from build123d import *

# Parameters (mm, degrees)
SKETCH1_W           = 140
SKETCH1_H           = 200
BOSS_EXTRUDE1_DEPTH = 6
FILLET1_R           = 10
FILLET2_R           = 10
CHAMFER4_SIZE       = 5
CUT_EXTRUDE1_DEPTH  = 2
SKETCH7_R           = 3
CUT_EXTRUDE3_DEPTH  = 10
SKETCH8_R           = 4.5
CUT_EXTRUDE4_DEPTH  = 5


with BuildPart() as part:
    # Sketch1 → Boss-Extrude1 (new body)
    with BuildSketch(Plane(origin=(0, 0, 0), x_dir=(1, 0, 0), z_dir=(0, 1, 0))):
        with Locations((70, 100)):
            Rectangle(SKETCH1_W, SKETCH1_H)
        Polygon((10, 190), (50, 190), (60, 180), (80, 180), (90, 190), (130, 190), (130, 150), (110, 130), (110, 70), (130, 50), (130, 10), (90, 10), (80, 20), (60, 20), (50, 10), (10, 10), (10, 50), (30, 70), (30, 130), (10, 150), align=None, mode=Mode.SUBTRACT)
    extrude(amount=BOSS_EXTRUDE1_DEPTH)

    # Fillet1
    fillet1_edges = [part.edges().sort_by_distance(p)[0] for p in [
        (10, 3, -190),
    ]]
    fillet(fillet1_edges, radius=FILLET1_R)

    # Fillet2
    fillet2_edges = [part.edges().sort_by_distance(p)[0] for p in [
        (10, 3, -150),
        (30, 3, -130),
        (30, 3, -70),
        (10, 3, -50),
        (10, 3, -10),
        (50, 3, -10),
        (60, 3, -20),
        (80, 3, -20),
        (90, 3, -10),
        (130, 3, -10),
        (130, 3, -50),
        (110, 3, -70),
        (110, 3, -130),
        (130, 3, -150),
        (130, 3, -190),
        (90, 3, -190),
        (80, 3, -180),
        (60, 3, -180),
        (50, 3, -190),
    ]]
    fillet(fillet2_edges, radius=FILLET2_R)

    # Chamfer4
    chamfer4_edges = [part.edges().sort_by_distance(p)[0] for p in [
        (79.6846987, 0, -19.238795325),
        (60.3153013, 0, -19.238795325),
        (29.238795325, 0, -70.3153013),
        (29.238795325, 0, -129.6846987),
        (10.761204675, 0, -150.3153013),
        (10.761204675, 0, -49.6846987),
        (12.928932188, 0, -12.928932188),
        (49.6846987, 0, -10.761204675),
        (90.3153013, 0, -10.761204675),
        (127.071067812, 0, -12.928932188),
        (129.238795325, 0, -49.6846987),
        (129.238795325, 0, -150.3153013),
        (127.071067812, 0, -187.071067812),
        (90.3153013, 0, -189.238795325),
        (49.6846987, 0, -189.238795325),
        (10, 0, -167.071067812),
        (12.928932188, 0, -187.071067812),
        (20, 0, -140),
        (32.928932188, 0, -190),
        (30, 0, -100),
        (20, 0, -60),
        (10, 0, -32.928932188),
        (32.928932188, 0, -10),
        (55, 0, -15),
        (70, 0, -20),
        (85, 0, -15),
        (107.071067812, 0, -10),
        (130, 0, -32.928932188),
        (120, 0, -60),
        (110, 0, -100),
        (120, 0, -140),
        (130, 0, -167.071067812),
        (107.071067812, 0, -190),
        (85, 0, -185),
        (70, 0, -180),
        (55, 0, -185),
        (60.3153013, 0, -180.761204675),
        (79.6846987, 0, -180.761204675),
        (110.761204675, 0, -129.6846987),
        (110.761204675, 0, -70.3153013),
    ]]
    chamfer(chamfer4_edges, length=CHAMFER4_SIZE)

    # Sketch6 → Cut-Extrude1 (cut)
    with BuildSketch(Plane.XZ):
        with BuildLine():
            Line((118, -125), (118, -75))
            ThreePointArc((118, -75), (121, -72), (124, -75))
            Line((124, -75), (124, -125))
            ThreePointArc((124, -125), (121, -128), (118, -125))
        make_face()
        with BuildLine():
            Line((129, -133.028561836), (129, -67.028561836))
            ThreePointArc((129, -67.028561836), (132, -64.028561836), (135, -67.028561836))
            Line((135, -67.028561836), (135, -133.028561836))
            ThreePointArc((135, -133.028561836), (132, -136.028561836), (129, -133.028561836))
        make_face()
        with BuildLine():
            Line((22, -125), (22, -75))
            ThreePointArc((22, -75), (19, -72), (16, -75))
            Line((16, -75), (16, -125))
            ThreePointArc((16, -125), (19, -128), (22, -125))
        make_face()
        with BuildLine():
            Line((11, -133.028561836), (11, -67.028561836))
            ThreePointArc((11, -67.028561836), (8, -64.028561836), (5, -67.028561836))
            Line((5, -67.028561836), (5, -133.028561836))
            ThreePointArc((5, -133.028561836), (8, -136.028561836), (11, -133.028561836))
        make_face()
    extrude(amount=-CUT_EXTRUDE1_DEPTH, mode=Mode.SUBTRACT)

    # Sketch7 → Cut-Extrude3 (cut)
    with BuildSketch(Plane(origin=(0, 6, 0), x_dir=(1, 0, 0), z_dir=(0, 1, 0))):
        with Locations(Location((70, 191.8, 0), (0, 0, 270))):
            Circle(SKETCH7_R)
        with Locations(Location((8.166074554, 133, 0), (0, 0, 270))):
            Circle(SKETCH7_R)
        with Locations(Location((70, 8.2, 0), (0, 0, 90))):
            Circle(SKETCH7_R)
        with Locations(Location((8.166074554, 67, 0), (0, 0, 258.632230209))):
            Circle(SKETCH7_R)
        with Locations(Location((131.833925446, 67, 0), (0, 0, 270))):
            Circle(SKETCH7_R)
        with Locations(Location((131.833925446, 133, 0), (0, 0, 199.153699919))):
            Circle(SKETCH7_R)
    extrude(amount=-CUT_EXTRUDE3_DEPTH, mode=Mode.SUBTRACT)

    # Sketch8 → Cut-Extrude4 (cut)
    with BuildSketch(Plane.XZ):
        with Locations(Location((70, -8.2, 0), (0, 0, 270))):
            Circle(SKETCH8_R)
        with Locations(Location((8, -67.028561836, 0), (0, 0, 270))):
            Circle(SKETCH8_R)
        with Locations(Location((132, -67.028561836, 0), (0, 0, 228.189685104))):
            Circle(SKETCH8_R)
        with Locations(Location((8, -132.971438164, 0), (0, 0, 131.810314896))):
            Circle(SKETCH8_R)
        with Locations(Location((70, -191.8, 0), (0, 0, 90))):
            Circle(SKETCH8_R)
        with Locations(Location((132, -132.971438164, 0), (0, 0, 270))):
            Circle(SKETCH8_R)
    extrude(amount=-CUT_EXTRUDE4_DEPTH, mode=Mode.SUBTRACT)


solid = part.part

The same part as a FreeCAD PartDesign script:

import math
import FreeCAD as App
import Part
import Sketcher
from FreeCAD import Vector


def edges_at(feature, points):
    """Names of the edges that pass closest to the given points."""
    edges = feature.Shape.Edges
    near = lambda p: min(range(len(edges)), key=lambda i: edges[i].distToShape(Part.Vertex(*p))[0])
    return sorted({f"Edge{near(p) + 1}" for p in points})


def add_polygon(sketch, points):
    """Adds a closed chain of lines whose ends are joined by coincident constraints."""
    first, n = sketch.GeometryCount, len(points)
    for a, b in zip(points, points[1:] + points[:1]):
        sketch.addGeometry(Part.LineSegment(App.Vector(*a, 0), App.Vector(*b, 0)), False)
    for i in range(n):
        sketch.addConstraint(Sketcher.Constraint("Coincident", first + i, 2, first + (i + 1) % n, 1))

doc = App.newDocument("Part")
body = doc.addObject("PartDesign::Body", "Body")

# Sketch on XZ plane
sketch1 = body.newObject("Sketcher::SketchObject", "Sketch")
sketch1.AttachmentSupport = (doc.getObject("XZ_Plane"), [""])
sketch1.MapMode = "FlatFace"
add_polygon(sketch1, [(0, -200), (0, 0), (140, 0), (140, -200)])  # lines 0-3
add_polygon(sketch1, [(10, -150), (10, -190), (50, -190), (60, -180), (80, -180), (90, -190), (130, -190), (130, -150), (110, -130), (110, -70), (130, -50), (130, -10), (90, -10), (80, -20), (60, -20), (50, -10), (10, -10), (10, -50), (30, -70), (30, -130)])  # lines 4-23
sketch1.addConstraint([
    Sketcher.Constraint("Vertical", 0),
    Sketcher.Constraint("Horizontal", 1),
    Sketcher.Constraint("Vertical", 2),
    Sketcher.Constraint("Horizontal", 3),
    Sketcher.Constraint("Vertical", 4),
    Sketcher.Constraint("Horizontal", 5),
    Sketcher.Constraint("Horizontal", 7),
    Sketcher.Constraint("Horizontal", 9),
    Sketcher.Constraint("Vertical", 10),
    Sketcher.Constraint("Vertical", 12),
    Sketcher.Constraint("Vertical", 14),
    Sketcher.Constraint("Horizontal", 15),
    Sketcher.Constraint("Horizontal", 17),
    Sketcher.Constraint("Horizontal", 19),
    Sketcher.Constraint("Vertical", 20),
    Sketcher.Constraint("Vertical", 22),
    Sketcher.Constraint("Coincident", 0, 2, -1, 1),
    Sketcher.Constraint("Perpendicular", 6, 8),
    Sketcher.Constraint("Parallel", 8, 11),
    Sketcher.Constraint("Perpendicular", 11, 13),
    Sketcher.Constraint("Parallel", 13, 16),
    Sketcher.Constraint("Perpendicular", 16, 18),
    Sketcher.Constraint("Parallel", 18, 21),
    Sketcher.Constraint("Perpendicular", 21, 23),
    Sketcher.Constraint("Horizontal", 5, 2, 8, 2),
    Sketcher.Constraint("Horizontal", 15, 2, 18, 2),
    Sketcher.Constraint("Horizontal", 13, 2, 20, 2),
    Sketcher.Constraint("Horizontal", 12, 2, 21, 2),
    Sketcher.Constraint("Horizontal", 11, 2, 22, 2),
    Sketcher.Constraint("Horizontal", 10, 2, 23, 2),
    Sketcher.Constraint("Vertical", 10, 2, 13, 2),
    Sketcher.Constraint("Vertical", 8, 2, 15, 2),
    Sketcher.Constraint("Vertical", 7, 2, 16, 2),
    Sketcher.Constraint("Vertical", 6, 2, 17, 2),
    Sketcher.Constraint("Vertical", 5, 2, 18, 2),
    Sketcher.Constraint("Equal", 5, 9),
    Sketcher.Constraint("Equal", 19, 4),
    Sketcher.Constraint("Equal", 10, 14),
    Sketcher.Constraint("DistanceX", 1, 1, 1, 2, 140.0),
    Sketcher.Constraint("DistanceX", 5, 1, 5, 2, 40.0),
    Sketcher.Constraint("DistanceX", 7, 1, 7, 2, 20.0),
    Sketcher.Constraint("DistanceY", 0, 1, 0, 2, 200.0),
    Sketcher.Constraint("DistanceY", 12, 1, 12, 2, 60.0),
    Sketcher.Constraint("DistanceX", -1, 1, 4, 2, 10.0),
    Sketcher.Constraint("DistanceY", 4, 2, -1, 1, 190.0),
    Sketcher.Constraint("DistanceX", -1, 1, 6, 2, 60.0),
    Sketcher.Constraint("DistanceX", -1, 1, 11, 2, 110.0),
])
pad1 = body.newObject("PartDesign::Pad", "Pad")
pad1.Profile = sketch1
pad1.Length = 6
pad1.Reversed = True
doc.recompute()

fillet = body.newObject("PartDesign::Fillet", "Fillet")
fillet.Base = (pad1, edges_at(pad1, [(10, 3, -190)]))
fillet.Radius = 10
doc.recompute()

fillet2 = body.newObject("PartDesign::Fillet", "Fillet001")
fillet2.Base = (fillet, edges_at(fillet, [
    (10, 3, -150),
    (30, 3, -130),
    (30, 3, -70),
    (10, 3, -50),
    (10, 3, -10),
    (50, 3, -10),
    (60, 3, -20),
    (80, 3, -20),
    (90, 3, -10),
    (130, 3, -10),
    (130, 3, -50),
    (110, 3, -70),
    (110, 3, -130),
    (130, 3, -150),
    (130, 3, -190),
    (90, 3, -190),
    (80, 3, -180),
    (60, 3, -180),
    (50, 3, -190),
]))
fillet2.Radius = 10
doc.recompute()

chamfer = body.newObject("PartDesign::Chamfer", "Chamfer")
chamfer.Base = (fillet2, edges_at(fillet2, [
    (79.685, 0, -19.239),
    (60.315, 0, -19.239),
    (29.239, 0, -70.315),
    (29.239, 0, -129.685),
    (10.761, 0, -150.315),
    (10.761, 0, -49.685),
    (12.929, 0, -12.929),
    (49.685, 0, -10.761),
    (90.315, 0, -10.761),
    (127.071, 0, -12.929),
    (129.239, 0, -49.685),
    (129.239, 0, -150.315),
    (127.071, 0, -187.071),
    (90.315, 0, -189.239),
    (49.685, 0, -189.239),
    (10, 0, -167.071),
    (12.929, 0, -187.071),
    (20, 0, -140),
    (32.929, 0, -190),
    (30, 0, -100),
    (20, 0, -60),
    (10, 0, -32.929),
    (32.929, 0, -10),
    (55, 0, -15),
    (70, 0, -20),
    (85, 0, -15),
    (107.071, 0, -10),
    (130, 0, -32.929),
    (120, 0, -60),
    (110, 0, -100),
    (120, 0, -140),
    (130, 0, -167.071),
    (107.071, 0, -190),
    (85, 0, -185),
    (70, 0, -180),
    (55, 0, -185),
    (60.315, 0, -180.761),
    (79.685, 0, -180.761),
    (110.761, 0, -129.685),
    (110.761, 0, -70.315),
]))
chamfer.Size = 5

# Sketch on XZ plane
sketch2 = body.newObject("Sketcher::SketchObject", "Sketch001")
sketch2.AttachmentSupport = (doc.getObject("XZ_Plane"), [""])
sketch2.MapMode = "FlatFace"
sketch2.addGeometry([
    Part.LineSegment(Vector(118, -75, 0), Vector(118, -125, 0)),  # 0
    Part.ArcOfCircle(Part.Circle(Vector(121, -125, 0), Vector(0, 0, 1), 3), math.radians(180), math.radians(360)),  # 1
    Part.LineSegment(Vector(124, -125, 0), Vector(124, -75, 0)),  # 2
    Part.ArcOfCircle(Part.Circle(Vector(121, -75, 0), Vector(0, 0, 1), 3), math.radians(0), math.radians(180)),  # 3
    Part.LineSegment(Vector(129, -67, 0), Vector(129, -133, 0)),  # 4
    Part.ArcOfCircle(Part.Circle(Vector(132, -133, 0), Vector(0, 0, 1), 3), math.radians(180), math.radians(360)),  # 5
    Part.LineSegment(Vector(135, -133, 0), Vector(135, -67, 0)),  # 6
    Part.ArcOfCircle(Part.Circle(Vector(132, -67, 0), Vector(0, 0, 1), 3), math.radians(0), math.radians(180)),  # 7
    Part.LineSegment(Vector(22, -125, 0), Vector(22, -75, 0)),  # 8
    Part.ArcOfCircle(Part.Circle(Vector(19, -75, 0), Vector(0, 0, 1), 3), math.radians(0), math.radians(180)),  # 9
    Part.LineSegment(Vector(16, -75, 0), Vector(16, -125, 0)),  # 10
    Part.ArcOfCircle(Part.Circle(Vector(19, -125, 0), Vector(0, 0, 1), 3), math.radians(180), math.radians(360)),  # 11
    Part.LineSegment(Vector(11, -133, 0), Vector(11, -67, 0)),  # 12
    Part.ArcOfCircle(Part.Circle(Vector(8, -67, 0), Vector(0, 0, 1), 3), math.radians(0), math.radians(180)),  # 13
    Part.LineSegment(Vector(5, -67, 0), Vector(5, -133, 0)),  # 14
    Part.ArcOfCircle(Part.Circle(Vector(8, -133, 0), Vector(0, 0, 1), 3), math.radians(180), math.radians(360)),  # 15
], False)
sketch2.addConstraint([
    Sketcher.Constraint("Tangent", 0, 2, 1, 1),
    Sketcher.Constraint("Tangent", 1, 2, 2, 1),
    Sketcher.Constraint("Tangent", 2, 2, 3, 1),
    Sketcher.Constraint("Tangent", 3, 2, 0, 1),
    Sketcher.Constraint("Tangent", 4, 2, 5, 1),
    Sketcher.Constraint("Tangent", 5, 2, 6, 1),
    Sketcher.Constraint("Tangent", 6, 2, 7, 1),
    Sketcher.Constraint("Tangent", 7, 2, 4, 1),
    Sketcher.Constraint("Tangent", 8, 2, 9, 1),
    Sketcher.Constraint("Tangent", 9, 2, 10, 1),
    Sketcher.Constraint("Tangent", 10, 2, 11, 1),
    Sketcher.Constraint("Tangent", 11, 2, 8, 1),
    Sketcher.Constraint("Tangent", 12, 2, 13, 1),
    Sketcher.Constraint("Tangent", 13, 2, 14, 1),
    Sketcher.Constraint("Tangent", 14, 2, 15, 1),
    Sketcher.Constraint("Tangent", 15, 2, 12, 1),
    Sketcher.Constraint("Vertical", 0),
    Sketcher.Constraint("Vertical", 2),
    Sketcher.Constraint("Vertical", 4),
    Sketcher.Constraint("Vertical", 6),
    Sketcher.Constraint("Vertical", 8),
    Sketcher.Constraint("Vertical", 10),
    Sketcher.Constraint("Vertical", 12),
    Sketcher.Constraint("Vertical", 14),
    Sketcher.Constraint("Equal", 3, 5),
    Sketcher.Constraint("Equal", 7, 9),
    Sketcher.Constraint("Equal", 11, 13),
    Sketcher.Constraint("Horizontal", 3, 3, 9, 3),
    Sketcher.Constraint("Horizontal", 1, 3, 11, 3),
    Sketcher.Constraint("Horizontal", 7, 3, 13, 3),
    Sketcher.Constraint("Horizontal", 5, 3, 15, 3),
    Sketcher.Constraint("Radius", 1, 3.0),
    Sketcher.Constraint("DistanceY", 0, 2, 0, 1, 50.0),
    Sketcher.Constraint("DistanceY", 4, 2, 4, 1, 66.0),
    Sketcher.Constraint("DistanceX", -1, 1, 1, 3, 121.0),
    Sketcher.Constraint("DistanceY", 1, 3, -1, 1, 125.0),
    Sketcher.Constraint("DistanceX", -1, 1, 5, 3, 132.0),
    Sketcher.Constraint("DistanceX", -1, 1, 9, 3, 19.0),
    Sketcher.Constraint("DistanceX", -1, 1, 13, 3, 8.0),
    Sketcher.Constraint("DistanceY", 5, 3, -1, 1, 133.028562),
])
pocket1 = body.newObject("PartDesign::Pocket", "Pocket")
pocket1.Profile = sketch2
pocket1.Length = 2

# Sketch on XZ plane
sketch3 = body.newObject("Sketcher::SketchObject", "Sketch002")
sketch3.AttachmentSupport = (doc.getObject("XZ_Plane"), [""])
sketch3.MapMode = "FlatFace"
sketch3.AttachmentOffset = App.Placement(Vector(0, 0, -6), App.Rotation())
sketch3.addGeometry([
    Part.Circle(Vector(70, -191.8, 0), Vector(0, 0, 1), 3),  # 0
    Part.Circle(Vector(8.2, -133, 0), Vector(0, 0, 1), 3),  # 1
    Part.Circle(Vector(70, -8.2, 0), Vector(0, 0, 1), 3),  # 2
    Part.Circle(Vector(8.2, -67, 0), Vector(0, 0, 1), 3),  # 3
    Part.Circle(Vector(131.8, -67, 0), Vector(0, 0, 1), 3),  # 4
    Part.Circle(Vector(131.8, -133, 0), Vector(0, 0, 1), 3),  # 5
], False)
sketch3.addConstraint([
    Sketcher.Constraint("Equal", 0, 1),
    Sketcher.Constraint("Equal", 1, 2),
    Sketcher.Constraint("Equal", 2, 3),
    Sketcher.Constraint("Equal", 3, 4),
    Sketcher.Constraint("Equal", 4, 5),
    Sketcher.Constraint("Horizontal", 3, 3, 4, 3),
    Sketcher.Constraint("Horizontal", 1, 3, 5, 3),
    Sketcher.Constraint("Vertical", 0, 3, 2, 3),
    Sketcher.Constraint("Vertical", 1, 3, 3, 3),
    Sketcher.Constraint("Vertical", 4, 3, 5, 3),
    Sketcher.Constraint("Diameter", 0, 6.0),
    Sketcher.Constraint("DistanceX", -1, 1, 0, 3, 70.0),
    Sketcher.Constraint("DistanceY", 1, 3, -1, 1, 133.0),
    Sketcher.Constraint("DistanceY", 3, 3, -1, 1, 67.0),
    Sketcher.Constraint("DistanceY", 0, 3, -1, 1, 191.8),
    Sketcher.Constraint("DistanceY", 2, 3, -1, 1, 8.2),
    Sketcher.Constraint("DistanceX", 3, 3, 4, 3, 123.667851),
    Sketcher.Constraint("DistanceX", -1, 1, 1, 3, 8.166075),
])
pocket2 = body.newObject("PartDesign::Pocket", "Pocket001")
pocket2.Profile = sketch3
pocket2.Length = 10
pocket2.Reversed = True

# Sketch on XZ plane
sketch4 = body.newObject("Sketcher::SketchObject", "Sketch003")
sketch4.AttachmentSupport = (doc.getObject("XZ_Plane"), [""])
sketch4.MapMode = "FlatFace"
sketch4.addGeometry([
    Part.Circle(Vector(70, -8.2, 0), Vector(0, 0, 1), 4.5),  # 0
    Part.Circle(Vector(8, -67, 0), Vector(0, 0, 1), 4.5),  # 1
    Part.Circle(Vector(132, -67, 0), Vector(0, 0, 1), 4.5),  # 2
    Part.Circle(Vector(8, -133, 0), Vector(0, 0, 1), 4.5),  # 3
    Part.Circle(Vector(70, -191.8, 0), Vector(0, 0, 1), 4.5),  # 4
    Part.Circle(Vector(132, -133, 0), Vector(0, 0, 1), 4.5),  # 5
], False)
sketch4.addConstraint([
    Sketcher.Constraint("Equal", 0, 1),
    Sketcher.Constraint("Equal", 1, 2),
    Sketcher.Constraint("Equal", 2, 3),
    Sketcher.Constraint("Equal", 3, 4),
    Sketcher.Constraint("Equal", 4, 5),
    Sketcher.Constraint("Horizontal", 1, 3, 2, 3),
    Sketcher.Constraint("Horizontal", 3, 3, 5, 3),
    Sketcher.Constraint("Vertical", 1, 3, 3, 3),
    Sketcher.Constraint("Vertical", 0, 3, 4, 3),
    Sketcher.Constraint("Vertical", 2, 3, 5, 3),
    Sketcher.Constraint("Diameter", 0, 9.0),
    Sketcher.Constraint("DistanceX", -1, 1, 0, 3, 70.0),
    Sketcher.Constraint("DistanceX", -1, 1, 1, 3, 8.0),
    Sketcher.Constraint("DistanceX", -1, 1, 2, 3, 132.0),
    Sketcher.Constraint("DistanceY", 0, 3, -1, 1, 8.2),
    Sketcher.Constraint("DistanceY", 4, 3, -1, 1, 191.8),
    Sketcher.Constraint("DistanceY", 1, 3, -1, 1, 67.028562),
    Sketcher.Constraint("DistanceY", 3, 3, -1, 1, 132.971438),
])
pocket3 = body.newObject("PartDesign::Pocket", "Pocket002")
pocket3.Profile = sketch4
pocket3.Length = 5

doc.recompute()
